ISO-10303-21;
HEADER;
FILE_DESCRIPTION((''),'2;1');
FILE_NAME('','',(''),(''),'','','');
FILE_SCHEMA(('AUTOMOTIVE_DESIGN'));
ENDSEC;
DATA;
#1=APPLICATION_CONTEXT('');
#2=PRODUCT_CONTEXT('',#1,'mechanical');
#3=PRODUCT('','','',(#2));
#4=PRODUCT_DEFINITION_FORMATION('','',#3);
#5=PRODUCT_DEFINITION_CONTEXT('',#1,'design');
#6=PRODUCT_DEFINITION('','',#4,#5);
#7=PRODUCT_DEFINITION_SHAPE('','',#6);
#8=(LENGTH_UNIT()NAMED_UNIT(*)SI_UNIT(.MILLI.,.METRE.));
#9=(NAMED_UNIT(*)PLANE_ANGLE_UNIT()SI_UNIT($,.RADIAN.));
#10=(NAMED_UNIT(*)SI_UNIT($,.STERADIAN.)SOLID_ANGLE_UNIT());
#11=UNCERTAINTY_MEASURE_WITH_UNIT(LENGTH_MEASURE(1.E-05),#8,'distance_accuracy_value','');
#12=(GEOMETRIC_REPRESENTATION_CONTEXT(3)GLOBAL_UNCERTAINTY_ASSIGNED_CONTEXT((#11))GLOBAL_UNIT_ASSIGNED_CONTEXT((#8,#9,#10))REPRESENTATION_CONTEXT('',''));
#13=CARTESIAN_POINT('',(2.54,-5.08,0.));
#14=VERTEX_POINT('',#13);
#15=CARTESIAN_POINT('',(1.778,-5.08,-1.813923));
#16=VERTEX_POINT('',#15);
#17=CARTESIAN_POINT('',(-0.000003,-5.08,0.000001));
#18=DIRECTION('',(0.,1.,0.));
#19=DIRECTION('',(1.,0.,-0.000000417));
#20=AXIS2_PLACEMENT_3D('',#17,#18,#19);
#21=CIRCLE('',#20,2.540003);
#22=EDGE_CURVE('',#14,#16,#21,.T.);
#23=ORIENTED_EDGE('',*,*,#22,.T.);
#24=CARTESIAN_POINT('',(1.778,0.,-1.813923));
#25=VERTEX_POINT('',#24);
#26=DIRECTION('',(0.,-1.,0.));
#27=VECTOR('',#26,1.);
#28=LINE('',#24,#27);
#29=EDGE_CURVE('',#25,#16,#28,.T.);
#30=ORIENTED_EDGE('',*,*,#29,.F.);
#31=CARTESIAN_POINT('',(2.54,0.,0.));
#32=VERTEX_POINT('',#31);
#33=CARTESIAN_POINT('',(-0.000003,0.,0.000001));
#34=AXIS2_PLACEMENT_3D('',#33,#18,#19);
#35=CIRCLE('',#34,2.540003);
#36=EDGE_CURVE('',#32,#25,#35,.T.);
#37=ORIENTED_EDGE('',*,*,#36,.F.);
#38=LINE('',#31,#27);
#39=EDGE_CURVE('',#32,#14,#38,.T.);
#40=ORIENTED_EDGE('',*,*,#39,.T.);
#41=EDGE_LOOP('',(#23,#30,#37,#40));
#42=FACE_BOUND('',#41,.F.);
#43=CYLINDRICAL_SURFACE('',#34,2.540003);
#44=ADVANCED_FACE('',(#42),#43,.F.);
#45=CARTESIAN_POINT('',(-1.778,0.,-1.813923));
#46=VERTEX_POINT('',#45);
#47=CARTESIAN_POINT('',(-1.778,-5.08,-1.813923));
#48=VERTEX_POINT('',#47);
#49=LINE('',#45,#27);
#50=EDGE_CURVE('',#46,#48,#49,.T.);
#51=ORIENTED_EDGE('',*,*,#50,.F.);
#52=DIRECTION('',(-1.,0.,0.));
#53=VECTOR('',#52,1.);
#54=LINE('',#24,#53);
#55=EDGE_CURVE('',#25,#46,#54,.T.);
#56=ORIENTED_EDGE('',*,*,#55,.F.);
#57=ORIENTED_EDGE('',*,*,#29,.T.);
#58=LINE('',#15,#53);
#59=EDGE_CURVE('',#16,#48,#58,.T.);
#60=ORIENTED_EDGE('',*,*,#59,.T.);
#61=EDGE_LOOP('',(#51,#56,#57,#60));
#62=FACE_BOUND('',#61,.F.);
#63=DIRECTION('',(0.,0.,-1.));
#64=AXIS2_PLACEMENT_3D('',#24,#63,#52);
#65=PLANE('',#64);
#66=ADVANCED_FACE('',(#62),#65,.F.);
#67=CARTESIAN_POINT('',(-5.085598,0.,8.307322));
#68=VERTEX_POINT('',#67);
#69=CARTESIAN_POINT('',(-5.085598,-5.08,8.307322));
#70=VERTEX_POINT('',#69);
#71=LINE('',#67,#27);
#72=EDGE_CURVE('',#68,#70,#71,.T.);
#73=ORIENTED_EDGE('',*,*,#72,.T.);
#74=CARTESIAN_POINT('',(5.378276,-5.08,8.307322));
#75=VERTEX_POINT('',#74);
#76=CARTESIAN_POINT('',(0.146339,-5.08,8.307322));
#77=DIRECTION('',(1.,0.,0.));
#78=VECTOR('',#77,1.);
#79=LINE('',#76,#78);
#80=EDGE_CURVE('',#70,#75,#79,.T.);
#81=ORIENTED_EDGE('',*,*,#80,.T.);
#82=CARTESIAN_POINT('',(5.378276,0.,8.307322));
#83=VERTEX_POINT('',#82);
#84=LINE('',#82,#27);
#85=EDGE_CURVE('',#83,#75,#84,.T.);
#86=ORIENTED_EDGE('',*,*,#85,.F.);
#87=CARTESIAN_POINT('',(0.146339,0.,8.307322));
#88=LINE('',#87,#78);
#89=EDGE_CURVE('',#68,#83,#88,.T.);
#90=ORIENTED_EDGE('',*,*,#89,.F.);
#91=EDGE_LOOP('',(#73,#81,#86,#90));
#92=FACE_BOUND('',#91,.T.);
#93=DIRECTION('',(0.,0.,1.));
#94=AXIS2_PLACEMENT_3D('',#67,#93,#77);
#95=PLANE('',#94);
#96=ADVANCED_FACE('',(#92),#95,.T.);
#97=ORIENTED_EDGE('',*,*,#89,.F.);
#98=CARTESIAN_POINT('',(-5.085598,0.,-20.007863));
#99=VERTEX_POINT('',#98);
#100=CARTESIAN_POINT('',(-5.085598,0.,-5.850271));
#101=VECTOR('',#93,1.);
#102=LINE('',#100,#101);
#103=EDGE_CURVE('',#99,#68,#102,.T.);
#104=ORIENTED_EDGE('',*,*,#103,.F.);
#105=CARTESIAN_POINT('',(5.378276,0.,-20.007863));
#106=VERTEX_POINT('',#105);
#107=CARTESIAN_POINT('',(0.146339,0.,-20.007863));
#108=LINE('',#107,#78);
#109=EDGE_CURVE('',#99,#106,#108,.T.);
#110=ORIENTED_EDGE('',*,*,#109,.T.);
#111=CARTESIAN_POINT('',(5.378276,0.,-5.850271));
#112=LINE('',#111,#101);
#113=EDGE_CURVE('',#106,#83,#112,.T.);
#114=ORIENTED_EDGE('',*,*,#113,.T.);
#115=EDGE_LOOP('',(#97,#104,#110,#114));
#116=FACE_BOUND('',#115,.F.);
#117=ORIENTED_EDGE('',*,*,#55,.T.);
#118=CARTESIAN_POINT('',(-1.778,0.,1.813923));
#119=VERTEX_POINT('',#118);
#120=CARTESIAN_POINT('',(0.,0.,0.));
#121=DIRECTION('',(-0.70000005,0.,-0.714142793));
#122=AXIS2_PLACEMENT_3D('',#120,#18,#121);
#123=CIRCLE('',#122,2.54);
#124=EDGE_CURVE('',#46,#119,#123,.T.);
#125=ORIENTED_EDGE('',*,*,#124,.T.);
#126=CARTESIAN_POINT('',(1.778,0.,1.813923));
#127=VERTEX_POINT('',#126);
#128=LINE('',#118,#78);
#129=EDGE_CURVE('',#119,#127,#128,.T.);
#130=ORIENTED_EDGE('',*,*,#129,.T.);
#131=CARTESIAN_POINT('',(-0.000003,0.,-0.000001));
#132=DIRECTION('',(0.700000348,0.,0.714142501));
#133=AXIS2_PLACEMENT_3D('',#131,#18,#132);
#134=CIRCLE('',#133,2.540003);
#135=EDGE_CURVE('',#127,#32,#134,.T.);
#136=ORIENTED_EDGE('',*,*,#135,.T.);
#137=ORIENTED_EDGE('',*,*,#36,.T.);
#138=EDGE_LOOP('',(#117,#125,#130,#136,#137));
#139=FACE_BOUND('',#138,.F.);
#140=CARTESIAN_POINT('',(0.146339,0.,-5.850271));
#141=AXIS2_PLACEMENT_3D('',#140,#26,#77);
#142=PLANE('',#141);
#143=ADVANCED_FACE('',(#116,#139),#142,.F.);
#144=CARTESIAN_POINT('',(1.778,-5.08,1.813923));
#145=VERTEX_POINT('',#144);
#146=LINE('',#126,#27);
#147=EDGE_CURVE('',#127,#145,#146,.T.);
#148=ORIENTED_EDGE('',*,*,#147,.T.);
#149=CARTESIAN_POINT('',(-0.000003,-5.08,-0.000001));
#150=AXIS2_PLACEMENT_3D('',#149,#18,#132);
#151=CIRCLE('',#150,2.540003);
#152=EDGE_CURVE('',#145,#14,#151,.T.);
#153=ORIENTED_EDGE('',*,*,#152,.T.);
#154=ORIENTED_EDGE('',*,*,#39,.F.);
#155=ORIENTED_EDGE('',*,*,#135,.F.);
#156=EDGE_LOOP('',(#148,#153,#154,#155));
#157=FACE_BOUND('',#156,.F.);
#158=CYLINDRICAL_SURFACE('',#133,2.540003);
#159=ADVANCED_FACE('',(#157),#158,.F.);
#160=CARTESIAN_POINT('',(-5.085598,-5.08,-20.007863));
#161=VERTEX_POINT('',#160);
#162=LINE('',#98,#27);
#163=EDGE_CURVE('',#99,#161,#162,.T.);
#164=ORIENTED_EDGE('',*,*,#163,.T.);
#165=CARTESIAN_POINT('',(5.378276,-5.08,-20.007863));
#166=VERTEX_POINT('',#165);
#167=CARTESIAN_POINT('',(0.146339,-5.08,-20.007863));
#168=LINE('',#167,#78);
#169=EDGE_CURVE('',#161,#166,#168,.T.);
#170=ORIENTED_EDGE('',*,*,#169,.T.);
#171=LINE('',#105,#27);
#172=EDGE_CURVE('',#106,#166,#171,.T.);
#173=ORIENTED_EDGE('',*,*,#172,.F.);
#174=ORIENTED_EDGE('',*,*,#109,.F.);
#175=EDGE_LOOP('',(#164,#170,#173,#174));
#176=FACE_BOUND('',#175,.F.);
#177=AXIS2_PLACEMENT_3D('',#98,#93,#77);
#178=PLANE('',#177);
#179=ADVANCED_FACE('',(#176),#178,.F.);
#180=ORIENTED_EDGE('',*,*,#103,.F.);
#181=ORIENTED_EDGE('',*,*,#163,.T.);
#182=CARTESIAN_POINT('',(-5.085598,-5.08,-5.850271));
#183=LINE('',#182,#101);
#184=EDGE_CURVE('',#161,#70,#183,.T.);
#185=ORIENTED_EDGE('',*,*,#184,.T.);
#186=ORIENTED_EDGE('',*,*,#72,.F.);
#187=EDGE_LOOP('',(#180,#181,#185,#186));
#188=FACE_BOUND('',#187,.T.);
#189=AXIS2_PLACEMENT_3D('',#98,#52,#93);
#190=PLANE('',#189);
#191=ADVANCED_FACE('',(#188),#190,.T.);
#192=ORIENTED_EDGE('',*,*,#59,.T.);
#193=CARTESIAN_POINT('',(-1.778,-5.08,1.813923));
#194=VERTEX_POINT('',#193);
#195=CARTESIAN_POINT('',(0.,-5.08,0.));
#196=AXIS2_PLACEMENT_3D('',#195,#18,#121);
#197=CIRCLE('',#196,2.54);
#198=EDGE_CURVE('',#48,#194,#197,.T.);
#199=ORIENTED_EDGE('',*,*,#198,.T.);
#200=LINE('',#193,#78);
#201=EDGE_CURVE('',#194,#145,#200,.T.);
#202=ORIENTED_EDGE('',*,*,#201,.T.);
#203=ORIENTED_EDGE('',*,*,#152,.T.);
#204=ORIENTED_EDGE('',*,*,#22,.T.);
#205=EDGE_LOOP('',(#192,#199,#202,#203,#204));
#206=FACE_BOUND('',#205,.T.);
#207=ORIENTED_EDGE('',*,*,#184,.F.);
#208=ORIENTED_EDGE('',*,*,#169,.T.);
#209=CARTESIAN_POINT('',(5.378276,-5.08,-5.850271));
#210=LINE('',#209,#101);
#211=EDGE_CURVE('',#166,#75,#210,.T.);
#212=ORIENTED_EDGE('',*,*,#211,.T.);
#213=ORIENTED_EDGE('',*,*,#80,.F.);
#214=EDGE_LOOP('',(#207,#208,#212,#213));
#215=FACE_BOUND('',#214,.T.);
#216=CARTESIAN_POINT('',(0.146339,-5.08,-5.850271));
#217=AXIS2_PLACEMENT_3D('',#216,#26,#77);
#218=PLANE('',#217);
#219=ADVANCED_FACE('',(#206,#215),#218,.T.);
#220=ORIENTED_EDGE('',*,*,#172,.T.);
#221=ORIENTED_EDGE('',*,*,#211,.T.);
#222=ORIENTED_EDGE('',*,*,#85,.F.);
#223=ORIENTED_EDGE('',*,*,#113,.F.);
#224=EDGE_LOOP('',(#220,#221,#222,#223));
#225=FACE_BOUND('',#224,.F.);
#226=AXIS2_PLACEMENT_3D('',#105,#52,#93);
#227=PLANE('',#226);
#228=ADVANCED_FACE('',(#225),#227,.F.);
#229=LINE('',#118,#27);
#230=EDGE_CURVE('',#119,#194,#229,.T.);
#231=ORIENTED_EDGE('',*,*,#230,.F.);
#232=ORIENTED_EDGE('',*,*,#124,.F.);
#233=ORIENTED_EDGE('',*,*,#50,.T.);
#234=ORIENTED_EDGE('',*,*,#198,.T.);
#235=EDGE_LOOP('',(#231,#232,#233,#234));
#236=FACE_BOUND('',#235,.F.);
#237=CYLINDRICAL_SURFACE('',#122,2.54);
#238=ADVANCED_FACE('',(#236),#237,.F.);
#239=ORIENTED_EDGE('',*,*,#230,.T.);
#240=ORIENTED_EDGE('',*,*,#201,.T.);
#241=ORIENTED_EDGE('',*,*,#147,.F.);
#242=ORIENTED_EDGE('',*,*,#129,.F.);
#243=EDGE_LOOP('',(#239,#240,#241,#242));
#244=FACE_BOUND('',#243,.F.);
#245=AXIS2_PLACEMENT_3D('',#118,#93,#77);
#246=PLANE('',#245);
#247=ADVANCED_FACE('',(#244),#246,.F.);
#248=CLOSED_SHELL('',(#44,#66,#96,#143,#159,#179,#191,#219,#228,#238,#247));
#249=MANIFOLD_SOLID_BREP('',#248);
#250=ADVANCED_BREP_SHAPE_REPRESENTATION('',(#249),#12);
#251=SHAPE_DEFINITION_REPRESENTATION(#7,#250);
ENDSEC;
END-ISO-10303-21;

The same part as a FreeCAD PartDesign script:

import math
import FreeCAD as App
import Part
import Sketcher
Q = App.Units.Quantity


def add_polygon(sketch, points):
    """Adds a closed chain of lines whose ends are joined by coincident constraints."""
    first, n = sketch.GeometryCount, len(points)
    for a, b in zip(points, points[1:] + points[:1]):
        sketch.addGeometry(Part.LineSegment(App.Vector(*a, 0), App.Vector(*b, 0)), False)
    for i in range(n):
        sketch.addConstraint(Sketcher.Constraint("Coincident", first + i, 2, first + (i + 1) % n, 1))

doc = App.newDocument("Part")
body = doc.addObject("PartDesign::Body", "Body")

# Sketch on XZ plane
sketch1 = body.newObject("Sketcher::SketchObject", "Sketch")
sketch1.AttachmentSupport = (doc.getObject("XZ_Plane"), [""])
sketch1.MapMode = "FlatFace"
add_polygon(sketch1, [(-5.1, 8.3), (-5.1, -20), (5.4, -20), (5.4, 8.3)])  # lines 0-3
sketch1.addGeometry(Part.ArcOfCircle(Part.Circle(App.Vector(0, 0, 0), App.Vector(0, 0, 1), 2.5), math.radians(134), math.radians(226)), False)  # 4
sketch1.addGeometry(Part.LineSegment(App.Vector(-1.8, 1.8, 0), App.Vector(1.8, 1.8, 0)), False)  # 5
sketch1.addGeometry(Part.ArcOfCircle(Part.Circle(App.Vector(0, 0, 0), App.Vector(0, 0, 1), 2.5), math.radians(0), math.radians(46)), False)  # 6
sketch1.addGeometry(Part.ArcOfCircle(Part.Circle(App.Vector(0, 0, 0), App.Vector(0, 0, 1), 2.5), math.radians(-46), math.radians(0)), False)  # 7
sketch1.addGeometry(Part.LineSegment(App.Vector(1.8, -1.8, 0), App.Vector(-1.8, -1.8, 0)), False)  # 8
sketch1.addConstraint([
    Sketcher.Constraint("Coincident", 4, 1, 5, 1),
    Sketcher.Constraint("Coincident", 5, 2, 6, 2),
    Sketcher.Constraint("Tangent", 6, 1, 7, 2),
    Sketcher.Constraint("Coincident", 7, 1, 8, 1),
    Sketcher.Constraint("Coincident", 8, 2, 4, 2),
    Sketcher.Constraint("Vertical", 0),
    Sketcher.Constraint("Horizontal", 1),
    Sketcher.Constraint("Vertical", 2),
    Sketcher.Constraint("Horizontal", 3),
    Sketcher.Constraint("Horizontal", 5),
    Sketcher.Constraint("Horizontal", 8),
    Sketcher.Constraint("Coincident", 4, 3, -1, 1),
    Sketcher.Constraint("Coincident", 6, 3, -1, 1),
    Sketcher.Constraint("Equal", 6, 7),
    Sketcher.Constraint("Symmetric", 4, 1, 7, 1, -1, 1),
    Sketcher.Constraint("PointOnObject", 6, 1, -1),
    Sketcher.Constraint("Radius", 4, Q("0.1 in")),
    Sketcher.Constraint("DistanceX", 5, 1, 5, 2, Q("0.14 in")),
    Sketcher.Constraint("DistanceX", 0, 2, 4, 3, 5.085598),
    Sketcher.Constraint("DistanceY", 4, 1, 3, 2, 6.493399),
    Sketcher.Constraint("DistanceX", 1, 1, 1, 2, 10.463874),
    Sketcher.Constraint("DistanceY", 0, 2, 0, 1, 28.315185),
])
pad1 = body.newObject("PartDesign::Pad", "Pad")
pad1.Profile = sketch1
pad1.Length = Q("0.2 in")

doc.recompute()
